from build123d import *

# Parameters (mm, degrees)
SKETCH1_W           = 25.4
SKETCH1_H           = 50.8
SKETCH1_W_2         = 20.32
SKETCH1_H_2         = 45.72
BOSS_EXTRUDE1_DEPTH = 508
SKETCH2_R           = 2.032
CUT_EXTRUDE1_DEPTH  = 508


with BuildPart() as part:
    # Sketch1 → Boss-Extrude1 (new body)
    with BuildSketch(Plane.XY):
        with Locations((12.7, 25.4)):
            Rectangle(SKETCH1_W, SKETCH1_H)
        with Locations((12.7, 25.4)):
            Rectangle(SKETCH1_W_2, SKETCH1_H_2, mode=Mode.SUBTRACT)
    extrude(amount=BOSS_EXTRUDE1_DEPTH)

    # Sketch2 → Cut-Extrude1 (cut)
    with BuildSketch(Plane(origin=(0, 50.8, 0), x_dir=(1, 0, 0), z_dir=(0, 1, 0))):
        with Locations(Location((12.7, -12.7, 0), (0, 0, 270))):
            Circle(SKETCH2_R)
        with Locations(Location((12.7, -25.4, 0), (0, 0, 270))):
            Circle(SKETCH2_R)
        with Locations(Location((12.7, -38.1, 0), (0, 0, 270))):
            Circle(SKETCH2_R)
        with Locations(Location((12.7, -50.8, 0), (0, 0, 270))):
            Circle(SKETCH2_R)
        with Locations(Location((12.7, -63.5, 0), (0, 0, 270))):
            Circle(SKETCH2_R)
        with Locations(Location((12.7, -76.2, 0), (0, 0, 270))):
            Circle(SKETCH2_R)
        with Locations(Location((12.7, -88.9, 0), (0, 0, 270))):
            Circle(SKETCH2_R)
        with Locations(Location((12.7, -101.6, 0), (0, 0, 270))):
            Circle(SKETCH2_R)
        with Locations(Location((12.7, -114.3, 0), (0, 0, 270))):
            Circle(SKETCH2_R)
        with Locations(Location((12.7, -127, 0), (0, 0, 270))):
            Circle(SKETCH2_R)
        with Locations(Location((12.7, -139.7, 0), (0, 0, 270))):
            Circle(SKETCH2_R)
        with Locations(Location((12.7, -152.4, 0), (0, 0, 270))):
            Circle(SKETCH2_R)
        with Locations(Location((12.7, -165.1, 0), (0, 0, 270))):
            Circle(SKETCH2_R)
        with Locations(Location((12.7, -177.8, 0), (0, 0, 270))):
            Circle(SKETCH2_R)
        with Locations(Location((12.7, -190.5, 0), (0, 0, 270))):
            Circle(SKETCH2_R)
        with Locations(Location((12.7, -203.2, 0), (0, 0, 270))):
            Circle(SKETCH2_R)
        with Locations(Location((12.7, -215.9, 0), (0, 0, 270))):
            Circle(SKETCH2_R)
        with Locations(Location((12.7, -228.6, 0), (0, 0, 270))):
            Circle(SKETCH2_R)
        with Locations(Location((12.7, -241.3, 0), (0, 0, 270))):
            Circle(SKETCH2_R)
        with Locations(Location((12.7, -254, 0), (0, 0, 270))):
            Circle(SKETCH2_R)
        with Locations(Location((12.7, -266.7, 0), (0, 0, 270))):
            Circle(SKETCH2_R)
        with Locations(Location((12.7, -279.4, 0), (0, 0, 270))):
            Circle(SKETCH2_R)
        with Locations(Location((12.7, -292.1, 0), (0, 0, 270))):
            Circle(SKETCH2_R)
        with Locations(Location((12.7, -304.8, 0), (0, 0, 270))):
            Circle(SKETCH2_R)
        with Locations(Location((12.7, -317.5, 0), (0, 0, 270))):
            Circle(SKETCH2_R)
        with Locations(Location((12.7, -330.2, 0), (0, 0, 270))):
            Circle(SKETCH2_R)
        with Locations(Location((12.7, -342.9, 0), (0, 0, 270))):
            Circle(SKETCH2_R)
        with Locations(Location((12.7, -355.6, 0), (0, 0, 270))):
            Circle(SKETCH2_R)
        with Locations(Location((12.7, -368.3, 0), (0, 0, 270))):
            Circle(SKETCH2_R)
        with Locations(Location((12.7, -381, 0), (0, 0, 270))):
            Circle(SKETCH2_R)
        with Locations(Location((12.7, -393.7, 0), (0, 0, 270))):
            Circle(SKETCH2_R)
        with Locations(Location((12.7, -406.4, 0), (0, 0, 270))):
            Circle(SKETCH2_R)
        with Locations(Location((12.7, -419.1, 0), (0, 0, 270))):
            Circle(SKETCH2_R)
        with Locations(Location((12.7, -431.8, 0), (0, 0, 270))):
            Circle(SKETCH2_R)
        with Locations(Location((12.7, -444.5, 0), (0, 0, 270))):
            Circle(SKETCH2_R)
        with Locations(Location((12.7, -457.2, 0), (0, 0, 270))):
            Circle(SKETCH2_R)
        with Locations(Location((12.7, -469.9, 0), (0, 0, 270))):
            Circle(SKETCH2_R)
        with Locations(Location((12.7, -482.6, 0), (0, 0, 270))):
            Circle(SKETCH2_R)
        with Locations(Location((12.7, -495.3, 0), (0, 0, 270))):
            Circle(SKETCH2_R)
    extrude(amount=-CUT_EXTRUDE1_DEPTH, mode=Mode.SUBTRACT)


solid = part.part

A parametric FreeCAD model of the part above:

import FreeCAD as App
import Part
import Sketcher
from FreeCAD import Vector
Q = App.Units.Quantity

doc = App.newDocument("Part")
body = doc.addObject("PartDesign::Body", "Body")

# Sketch on XY plane
sketch1 = doc.addObject("Sketcher::SketchObject", "Sketch")
body.addObject(sketch1)
sketch1.AttachmentSupport = (doc.XY_Plane, [""])
sketch1.MapMode = "FlatFace"
sketch1.addGeometry(Part.LineSegment(Vector(0, 51, 0), Vector(0, 0, 0)), False)
sketch1.addGeometry(Part.LineSegment(Vector(0, 0, 0), Vector(25, 0, 0)), False)
sketch1.addGeometry(Part.LineSegment(Vector(25, 0, 0), Vector(25, 51, 0)), False)
sketch1.addGeometry(Part.LineSegment(Vector(25, 51, 0), Vector(0, 51, 0)), False)
sketch1.addGeometry(Part.LineSegment(Vector(23, 3, 0), Vector(3, 3, 0)), False)
sketch1.addGeometry(Part.LineSegment(Vector(3, 3, 0), Vector(3, 48, 0)), False)
sketch1.addGeometry(Part.LineSegment(Vector(3, 48, 0), Vector(23, 48, 0)), False)
sketch1.addGeometry(Part.LineSegment(Vector(23, 48, 0), Vector(23, 3, 0)), False)
sketch1.addConstraint(Sketcher.Constraint("Coincident", 0, 2, 1, 1))
sketch1.addConstraint(Sketcher.Constraint("Coincident", 1, 2, 2, 1))
sketch1.addConstraint(Sketcher.Constraint("Coincident", 2, 2, 3, 1))
sketch1.addConstraint(Sketcher.Constraint("Coincident", 3, 2, 0, 1))
sketch1.addConstraint(Sketcher.Constraint("Coincident", 4, 2, 5, 1))
sketch1.addConstraint(Sketcher.Constraint("Coincident", 5, 2, 6, 1))
sketch1.addConstraint(Sketcher.Constraint("Coincident", 6, 2, 7, 1))
sketch1.addConstraint(Sketcher.Constraint("Coincident", 7, 2, 4, 1))
sketch1.addConstraint(Sketcher.Constraint("Vertical", 0))
sketch1.addConstraint(Sketcher.Constraint("Horizontal", 1))
sketch1.addConstraint(Sketcher.Constraint("Vertical", 2))
sketch1.addConstraint(Sketcher.Constraint("Horizontal", 3))
sketch1.addConstraint(Sketcher.Constraint("Horizontal", 4))
sketch1.addConstraint(Sketcher.Constraint("Vertical", 5))
sketch1.addConstraint(Sketcher.Constraint("Horizontal", 6))
sketch1.addConstraint(Sketcher.Constraint("Vertical", 7))
sketch1.addConstraint(Sketcher.Constraint("Coincident", 0, 2, -1, 1))
sketch1.addConstraint(Sketcher.Constraint("DistanceX", 1, 1, 1, 2, Q("1 in")))
sketch1.addConstraint(Sketcher.Constraint("DistanceY", 0, 2, 0, 1, Q("2 in")))
sketch1.addConstraint(Sketcher.Constraint("DistanceX", 4, 2, 4, 1, Q("0.8 in")))
sketch1.addConstraint(Sketcher.Constraint("DistanceY", 5, 1, 5, 2, Q("1.8 in")))
sketch1.addConstraint(Sketcher.Constraint("DistanceX", -1, 1, 4, 2, Q("0.1 in")))
sketch1.addConstraint(Sketcher.Constraint("DistanceY", -1, 1, 4, 2, Q("0.1 in")))
pad1 = doc.addObject("PartDesign::Pad", "Pad")
body.addObject(pad1)
pad1.Profile = sketch1
pad1.Length = Q("20 in")

# Sketch on XZ plane
sketch2 = doc.addObject("Sketcher::SketchObject", "Sketch001")
body.addObject(sketch2)
sketch2.AttachmentSupport = (doc.XZ_Plane, [""])
sketch2.MapMode = "FlatFace"
sketch2.AttachmentOffset = App.Placement(Vector(0, 0, -2 * 25.4), App.Rotation())
sketch2.addGeometry(Part.Circle(Vector(12.7, 12.7, 0), Vector(0, 0, 1), 2), False)
sketch2.addGeometry(Part.Circle(Vector(12.7, 25.4, 0), Vector(0, 0, 1), 2), False)
sketch2.addGeometry(Part.Circle(Vector(12.7, 38.1, 0), Vector(0, 0, 1), 2), False)
sketch2.addGeometry(Part.Circle(Vector(12.7, 50.8, 0), Vector(0, 0, 1), 2), False)
sketch2.addGeometry(Part.Circle(Vector(12.7, 63.5, 0), Vector(0, 0, 1), 2), False)
sketch2.addGeometry(Part.Circle(Vector(12.7, 76.2, 0), Vector(0, 0, 1), 2), False)
sketch2.addGeometry(Part.Circle(Vector(12.7, 88.9, 0), Vector(0, 0, 1), 2), False)
sketch2.addGeometry(Part.Circle(Vector(12.7, 101.6, 0), Vector(0, 0, 1), 2), False)
sketch2.addGeometry(Part.Circle(Vector(12.7, 114.3, 0), Vector(0, 0, 1), 2), False)
sketch2.addGeometry(Part.Circle(Vector(12.7, 127, 0), Vector(0, 0, 1), 2), False)
sketch2.addGeometry(Part.Circle(Vector(12.7, 139.7, 0), Vector(0, 0, 1), 2), False)
sketch2.addGeometry(Part.Circle(Vector(12.7, 152.4, 0), Vector(0, 0, 1), 2), False)
sketch2.addGeometry(Part.Circle(Vector(12.7, 165.1, 0), Vector(0, 0, 1), 2), False)
sketch2.addGeometry(Part.Circle(Vector(12.7, 177.8, 0), Vector(0, 0, 1), 2), False)
sketch2.addGeometry(Part.Circle(Vector(12.7, 190.5, 0), Vector(0, 0, 1), 2), False)
sketch2.addGeometry(Part.Circle(Vector(12.7, 203.2, 0), Vector(0, 0, 1), 2), False)
sketch2.addGeometry(Part.Circle(Vector(12.7, 215.9, 0), Vector(0, 0, 1), 2), False)
sketch2.addGeometry(Part.Circle(Vector(12.7, 228.6, 0), Vector(0, 0, 1), 2), False)
sketch2.addGeometry(Part.Circle(Vector(12.7, 241.3, 0), Vector(0, 0, 1), 2), False)
sketch2.addGeometry(Part.Circle(Vector(12.7, 254, 0), Vector(0, 0, 1), 2), False)
sketch2.addGeometry(Part.Circle(Vector(12.7, 266.7, 0), Vector(0, 0, 1), 2), False)
sketch2.addGeometry(Part.Circle(Vector(12.7, 279.4, 0), Vector(0, 0, 1), 2), False)
sketch2.addGeometry(Part.Circle(Vector(12.7, 292.1, 0), Vector(0, 0, 1), 2), False)
sketch2.addGeometry(Part.Circle(Vector(12.7, 304.8, 0), Vector(0, 0, 1), 2), False)
sketch2.addGeometry(Part.Circle(Vector(12.7, 317.5, 0), Vector(0, 0, 1), 2), False)
sketch2.addGeometry(Part.Circle(Vector(12.7, 330.2, 0), Vector(0, 0, 1), 2), False)
sketch2.addGeometry(Part.Circle(Vector(12.7, 342.9, 0), Vector(0, 0, 1), 2), False)
sketch2.addGeometry(Part.Circle(Vector(12.7, 355.6, 0), Vector(0, 0, 1), 2), False)
sketch2.addGeometry(Part.Circle(Vector(12.7, 368.3, 0), Vector(0, 0, 1), 2), False)
sketch2.addGeometry(Part.Circle(Vector(12.7, 381, 0), Vector(0, 0, 1), 2), False)
sketch2.addGeometry(Part.Circle(Vector(12.7, 393.7, 0), Vector(0, 0, 1), 2), False)
sketch2.addGeometry(Part.Circle(Vector(12.7, 406.4, 0), Vector(0, 0, 1), 2), False)
sketch2.addGeometry(Part.Circle(Vector(12.7, 419.1, 0), Vector(0, 0, 1), 2), False)
sketch2.addGeometry(Part.Circle(Vector(12.7, 431.8, 0), Vector(0, 0, 1), 2), False)
sketch2.addGeometry(Part.Circle(Vector(12.7, 444.5, 0), Vector(0, 0, 1), 2), False)
sketch2.addGeometry(Part.Circle(Vector(12.7, 457.2, 0), Vector(0, 0, 1), 2), False)
sketch2.addGeometry(Part.Circle(Vector(12.7, 469.9, 0), Vector(0, 0, 1), 2), False)
sketch2.addGeometry(Part.Circle(Vector(12.7, 482.6, 0), Vector(0, 0, 1), 2), False)
sketch2.addGeometry(Part.Circle(Vector(12.7, 495.3, 0), Vector(0, 0, 1), 2), False)
sketch2.addConstraint(Sketcher.Constraint("Equal", 0, 1))
sketch2.addConstraint(Sketcher.Constraint("Equal", 1, 2))
sketch2.addConstraint(Sketcher.Constraint("Equal", 2, 3))
sketch2.addConstraint(Sketcher.Constraint("Equal", 3, 4))
sketch2.addConstraint(Sketcher.Constraint("Equal", 4, 5))
sketch2.addConstraint(Sketcher.Constraint("Equal", 5, 6))
sketch2.addConstraint(Sketcher.Constraint("Equal", 6, 7))
sketch2.addConstraint(Sketcher.Constraint("Equal", 7, 8))
sketch2.addConstraint(Sketcher.Constraint("Equal", 8, 9))
sketch2.addConstraint(Sketcher.Constraint("Equal", 9, 10))
sketch2.addConstraint(Sketcher.Constraint("Equal", 10, 11))
sketch2.addConstraint(Sketcher.Constraint("Equal", 11, 12))
sketch2.addConstraint(Sketcher.Constraint("Equal", 12, 13))
sketch2.addConstraint(Sketcher.Constraint("Equal", 13, 14))
sketch2.addConstraint(Sketcher.Constraint("Equal", 14, 15))
sketch2.addConstraint(Sketcher.Constraint("Equal", 15, 16))
sketch2.addConstraint(Sketcher.Constraint("Equal", 16, 17))
sketch2.addConstraint(Sketcher.Constraint("Equal", 17, 18))
sketch2.addConstraint(Sketcher.Constraint("Equal", 18, 19))
sketch2.addConstraint(Sketcher.Constraint("Equal", 19, 20))
sketch2.addConstraint(Sketcher.Constraint("Equal", 20, 21))
sketch2.addConstraint(Sketcher.Constraint("Equal", 21, 22))
sketch2.addConstraint(Sketcher.Constraint("Equal", 22, 23))
sketch2.addConstraint(Sketcher.Constraint("Equal", 23, 24))
sketch2.addConstraint(Sketcher.Constraint("Equal", 24, 25))
sketch2.addConstraint(Sketcher.Constraint("Equal", 25, 26))
sketch2.addConstraint(Sketcher.Constraint("Equal", 26, 27))
sketch2.addConstraint(Sketcher.Constraint("Equal", 27, 28))
sketch2.addConstraint(Sketcher.Constraint("Equal", 28, 29))
sketch2.addConstraint(Sketcher.Constraint("Equal", 29, 30))
sketch2.addConstraint(Sketcher.Constraint("Equal", 30, 31))
sketch2.addConstraint(Sketcher.Constraint("Equal", 31, 32))
sketch2.addConstraint(Sketcher.Constraint("Equal", 32, 33))
sketch2.addConstraint(Sketcher.Constraint("Equal", 33, 34))
sketch2.addConstraint(Sketcher.Constraint("Equal", 34, 35))
sketch2.addConstraint(Sketcher.Constraint("Equal", 35, 36))
sketch2.addConstraint(Sketcher.Constraint("Equal", 36, 37))
sketch2.addConstraint(Sketcher.Constraint("Equal", 37, 38))
sketch2.addConstraint(Sketcher.Constraint("Vertical", 0, 3, 1, 3))
sketch2.addConstraint(Sketcher.Constraint("Vertical", 1, 3, 2, 3))
sketch2.addConstraint(Sketcher.Constraint("Vertical", 2, 3, 3, 3))
sketch2.addConstraint(Sketcher.Constraint("Vertical", 3, 3, 4, 3))
sketch2.addConstraint(Sketcher.Constraint("Vertical", 4, 3, 5, 3))
sketch2.addConstraint(Sketcher.Constraint("Vertical", 5, 3, 6, 3))
sketch2.addConstraint(Sketcher.Constraint("Vertical", 6, 3, 7, 3))
sketch2.addConstraint(Sketcher.Constraint("Vertical", 7, 3, 8, 3))
sketch2.addConstraint(Sketcher.Constraint("Vertical", 8, 3, 9, 3))
sketch2.addConstraint(Sketcher.Constraint("Vertical", 9, 3, 10, 3))
sketch2.addConstraint(Sketcher.Constraint("Vertical", 10, 3, 11, 3))
sketch2.addConstraint(Sketcher.Constraint("Vertical", 11, 3, 12, 3))
sketch2.addConstraint(Sketcher.Constraint("Vertical", 12, 3, 13, 3))
sketch2.addConstraint(Sketcher.Constraint("Vertical", 13, 3, 14, 3))
sketch2.addConstraint(Sketcher.Constraint("Vertical", 14, 3, 15, 3))
sketch2.addConstraint(Sketcher.Constraint("Vertical", 15, 3, 16, 3))
sketch2.addConstraint(Sketcher.Constraint("Vertical", 16, 3, 17, 3))
sketch2.addConstraint(Sketcher.Constraint("Vertical", 17, 3, 18, 3))
sketch2.addConstraint(Sketcher.Constraint("Vertical", 18, 3, 19, 3))
sketch2.addConstraint(Sketcher.Constraint("Vertical", 19, 3, 20, 3))
sketch2.addConstraint(Sketcher.Constraint("Vertical", 20, 3, 21, 3))
sketch2.addConstraint(Sketcher.Constraint("Vertical", 21, 3, 22, 3))
sketch2.addConstraint(Sketcher.Constraint("Vertical", 22, 3, 23, 3))
sketch2.addConstraint(Sketcher.Constraint("Vertical", 23, 3, 24, 3))
sketch2.addConstraint(Sketcher.Constraint("Vertical", 24, 3, 25, 3))
sketch2.addConstraint(Sketcher.Constraint("Vertical", 25, 3, 26, 3))
sketch2.addConstraint(Sketcher.Constraint("Vertical", 26, 3, 27, 3))
sketch2.addConstraint(Sketcher.Constraint("Vertical", 27, 3, 28, 3))
sketch2.addConstraint(Sketcher.Constraint("Vertical", 28, 3, 29, 3))
sketch2.addConstraint(Sketcher.Constraint("Vertical", 29, 3, 30, 3))
sketch2.addConstraint(Sketcher.Constraint("Vertical", 30, 3, 31, 3))
sketch2.addConstraint(Sketcher.Constraint("Vertical", 31, 3, 32, 3))
sketch2.addConstraint(Sketcher.Constraint("Vertical", 32, 3, 33, 3))
sketch2.addConstraint(Sketcher.Constraint("Vertical", 33, 3, 34, 3))
sketch2.addConstraint(Sketcher.Constraint("Vertical", 34, 3, 35, 3))
sketch2.addConstraint(Sketcher.Constraint("Vertical", 35, 3, 36, 3))
sketch2.addConstraint(Sketcher.Constraint("Vertical", 36, 3, 37, 3))
sketch2.addConstraint(Sketcher.Constraint("Vertical", 37, 3, 38, 3))
sketch2.addConstraint(Sketcher.Constraint("Diameter", 0, Q("0.16 in")))
sketch2.addConstraint(Sketcher.Constraint("DistanceY", -1, 1, 1, 3, Q("1 in")))
sketch2.addConstraint(Sketcher.Constraint("DistanceY", -1, 1, 3, 3, Q("2 in")))
sketch2.addConstraint(Sketcher.Constraint("DistanceY", -1, 1, 5, 3, Q("3 in")))
sketch2.addConstraint(Sketcher.Constraint("DistanceY", -1, 1, 7, 3, Q("4 in")))
sketch2.addConstraint(Sketcher.Constraint("DistanceY", -1, 1, 9, 3, Q("5 in")))
sketch2.addConstraint(Sketcher.Constraint("DistanceY", -1, 1, 11, 3, Q("6 in")))
sketch2.addConstraint(Sketcher.Constraint("DistanceY", -1, 1, 13, 3, Q("7 in")))
sketch2.addConstraint(Sketcher.Constraint("DistanceY", -1, 1, 15, 3, Q("8 in")))
sketch2.addConstraint(Sketcher.Constraint("DistanceY", -1, 1, 17, 3, Q("9 in")))
sketch2.addConstraint(Sketcher.Constraint("DistanceY", -1, 1, 19, 3, Q("10 in")))
sketch2.addConstraint(Sketcher.Constraint("DistanceY", -1, 1, 21, 3, Q("11 in")))
sketch2.addConstraint(Sketcher.Constraint("DistanceY", -1, 1, 23, 3, Q("12 in")))
sketch2.addConstraint(Sketcher.Constraint("DistanceY", -1, 1, 25, 3, Q("13 in")))
sketch2.addConstraint(Sketcher.Constraint("DistanceY", -1, 1, 27, 3, Q("14 in")))
sketch2.addConstraint(Sketcher.Constraint("DistanceY", -1, 1, 29, 3, Q("15 in")))
sketch2.addConstraint(Sketcher.Constraint("DistanceY", -1, 1, 31, 3, Q("16 in")))
sketch2.addConstraint(Sketcher.Constraint("DistanceY", -1, 1, 33, 3, Q("17 in")))
sketch2.addConstraint(Sketcher.Constraint("DistanceY", -1, 1, 35, 3, Q("18 in")))
sketch2.addConstraint(Sketcher.Constraint("DistanceY", -1, 1, 37, 3, Q("19 in")))
sketch2.addConstraint(Sketcher.Constraint("DistanceY", 0, 3, 2, 3, Q("1 in")))
sketch2.addConstraint(Sketcher.Constraint("DistanceY", 2, 3, 4, 3, Q("1 in")))
sketch2.addConstraint(Sketcher.Constraint("DistanceY", 4, 3, 6, 3, Q("1 in")))
sketch2.addConstraint(Sketcher.Constraint("DistanceY", 6, 3, 8, 3, Q("1 in")))
sketch2.addConstraint(Sketcher.Constraint("DistanceY", 8, 3, 10, 3, Q("1 in")))
sketch2.addConstraint(Sketcher.Constraint("DistanceY", 10, 3, 12, 3, Q("1 in")))
sketch2.addConstraint(Sketcher.Constraint("DistanceY", 12, 3, 14, 3, Q("1 in")))
sketch2.addConstraint(Sketcher.Constraint("DistanceY", 14, 3, 16, 3, Q("1 in")))
sketch2.addConstraint(Sketcher.Constraint("DistanceY", 16, 3, 18, 3, Q("1 in")))
sketch2.addConstraint(Sketcher.Constraint("DistanceY", 18, 3, 20, 3, Q("1 in")))
sketch2.addConstraint(Sketcher.Constraint("DistanceY", 20, 3, 22, 3, Q("1 in")))
sketch2.addConstraint(Sketcher.Constraint("DistanceY", 22, 3, 24, 3, Q("1 in")))
sketch2.addConstraint(Sketcher.Constraint("DistanceY", 24, 3, 26, 3, Q("1 in")))
sketch2.addConstraint(Sketcher.Constraint("DistanceY", 26, 3, 28, 3, Q("1 in")))
sketch2.addConstraint(Sketcher.Constraint("DistanceY", 28, 3, 30, 3, Q("1 in")))
sketch2.addConstraint(Sketcher.Constraint("DistanceY", 30, 3, 32, 3, Q("1 in")))
sketch2.addConstraint(Sketcher.Constraint("DistanceY", 32, 3, 34, 3, Q("1 in")))
sketch2.addConstraint(Sketcher.Constraint("DistanceY", 34, 3, 36, 3, Q("1 in")))
sketch2.addConstraint(Sketcher.Constraint("DistanceY", 36, 3, 38, 3, Q("1 in")))
sketch2.addConstraint(Sketcher.Constraint("DistanceX", -1, 1, 0, 3, Q("0.5 in")))
sketch2.addConstraint(Sketcher.Constraint("DistanceY", -1, 1, 0, 3, Q("0.5 in")))
pocket1 = doc.addObject("PartDesign::Pocket", "Pocket")
body.addObject(pocket1)
pocket1.Profile = sketch2
pocket1.Length = Q("20 in")
pocket1.Reversed = True

doc.recompute()
